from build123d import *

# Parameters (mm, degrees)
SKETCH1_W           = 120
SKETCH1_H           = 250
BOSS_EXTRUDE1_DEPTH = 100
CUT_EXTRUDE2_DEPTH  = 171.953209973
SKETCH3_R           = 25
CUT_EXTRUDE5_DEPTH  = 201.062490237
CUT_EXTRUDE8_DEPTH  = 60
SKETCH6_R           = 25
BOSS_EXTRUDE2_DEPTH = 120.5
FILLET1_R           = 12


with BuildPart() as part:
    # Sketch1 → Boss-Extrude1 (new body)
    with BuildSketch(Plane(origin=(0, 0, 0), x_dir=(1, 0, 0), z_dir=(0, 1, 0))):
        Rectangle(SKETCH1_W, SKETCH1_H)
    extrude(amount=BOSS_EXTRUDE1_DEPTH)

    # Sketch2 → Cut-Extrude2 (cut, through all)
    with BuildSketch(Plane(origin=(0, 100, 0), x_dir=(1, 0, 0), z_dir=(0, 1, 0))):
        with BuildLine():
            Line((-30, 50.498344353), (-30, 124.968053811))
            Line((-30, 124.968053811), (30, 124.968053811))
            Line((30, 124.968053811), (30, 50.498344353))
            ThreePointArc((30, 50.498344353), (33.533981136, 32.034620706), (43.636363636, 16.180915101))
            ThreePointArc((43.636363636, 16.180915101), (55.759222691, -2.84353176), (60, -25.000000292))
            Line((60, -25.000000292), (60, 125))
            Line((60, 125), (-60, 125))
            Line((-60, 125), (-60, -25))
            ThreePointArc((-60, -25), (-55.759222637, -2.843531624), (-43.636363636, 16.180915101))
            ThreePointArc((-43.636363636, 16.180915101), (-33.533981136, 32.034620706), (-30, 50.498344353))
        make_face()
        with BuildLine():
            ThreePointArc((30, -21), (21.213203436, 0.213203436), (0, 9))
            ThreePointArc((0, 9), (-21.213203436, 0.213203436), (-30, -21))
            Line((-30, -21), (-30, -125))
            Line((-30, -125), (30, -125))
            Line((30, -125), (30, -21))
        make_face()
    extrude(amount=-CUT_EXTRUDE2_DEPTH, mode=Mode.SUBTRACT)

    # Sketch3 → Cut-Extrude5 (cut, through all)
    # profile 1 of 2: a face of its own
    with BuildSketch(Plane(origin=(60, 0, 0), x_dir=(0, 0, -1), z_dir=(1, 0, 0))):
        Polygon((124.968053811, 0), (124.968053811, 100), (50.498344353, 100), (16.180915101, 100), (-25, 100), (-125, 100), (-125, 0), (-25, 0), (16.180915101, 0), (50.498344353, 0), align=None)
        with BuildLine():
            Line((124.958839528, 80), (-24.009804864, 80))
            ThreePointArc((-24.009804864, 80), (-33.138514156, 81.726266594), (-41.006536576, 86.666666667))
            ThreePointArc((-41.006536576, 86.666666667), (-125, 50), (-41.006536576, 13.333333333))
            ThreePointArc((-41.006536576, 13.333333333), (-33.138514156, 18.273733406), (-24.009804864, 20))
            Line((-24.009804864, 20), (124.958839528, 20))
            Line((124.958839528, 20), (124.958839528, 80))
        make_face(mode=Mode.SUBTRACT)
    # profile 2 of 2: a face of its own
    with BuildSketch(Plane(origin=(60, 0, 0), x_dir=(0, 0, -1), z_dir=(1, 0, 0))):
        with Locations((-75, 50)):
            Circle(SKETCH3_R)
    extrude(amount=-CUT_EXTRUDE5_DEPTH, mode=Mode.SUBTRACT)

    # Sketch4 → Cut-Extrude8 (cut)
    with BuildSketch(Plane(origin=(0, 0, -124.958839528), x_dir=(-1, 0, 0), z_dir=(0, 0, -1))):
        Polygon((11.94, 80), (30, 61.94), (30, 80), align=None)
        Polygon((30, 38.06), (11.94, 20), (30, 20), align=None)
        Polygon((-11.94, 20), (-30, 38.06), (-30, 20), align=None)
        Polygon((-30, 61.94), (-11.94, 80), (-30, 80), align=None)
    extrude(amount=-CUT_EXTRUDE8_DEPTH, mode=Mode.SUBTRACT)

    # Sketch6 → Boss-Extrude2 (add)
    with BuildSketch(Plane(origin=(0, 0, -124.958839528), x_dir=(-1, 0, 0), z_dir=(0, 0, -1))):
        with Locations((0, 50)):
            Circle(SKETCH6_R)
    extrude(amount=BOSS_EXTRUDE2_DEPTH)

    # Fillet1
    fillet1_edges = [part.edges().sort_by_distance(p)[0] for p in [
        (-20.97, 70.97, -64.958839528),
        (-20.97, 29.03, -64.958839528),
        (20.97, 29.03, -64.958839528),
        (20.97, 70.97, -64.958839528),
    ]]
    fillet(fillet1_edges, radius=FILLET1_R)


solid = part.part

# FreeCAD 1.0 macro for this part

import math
import FreeCAD as App
import Part
import Sketcher
Q = App.Units.Quantity


def edges_at(feature, points):
    """Names of the edges that pass closest to the given points."""
    edges = feature.Shape.Edges
    near = lambda p: min(range(len(edges)), key=lambda i: edges[i].distToShape(Part.Vertex(*p))[0])
    return sorted({f"Edge{near(p) + 1}" for p in points})


def add_polygon(sketch, points):
    """Adds a closed chain of lines whose ends are joined by coincident constraints."""
    first, n = sketch.GeometryCount, len(points)
    for a, b in zip(points, points[1:] + points[:1]):
        sketch.addGeometry(Part.LineSegment(App.Vector(*a, 0), App.Vector(*b, 0)), False)
    for i in range(n):
        sketch.addConstraint(Sketcher.Constraint("Coincident", first + i, 2, first + (i + 1) % n, 1))

doc = App.newDocument("Part")
params = doc.addObject("Spreadsheet::Sheet", "Params")
for row, (alias, value) in enumerate([
    ("sketch1_width", "120 mm"),
    ("sketch1_height", "250 mm"),
    ("pad1_length", "100 mm"),
    ("sketch2_radius", "50 mm"),
    ("sketch2_radius2", "60 mm"),
    ("sketch2_radius3", "30 mm"),
    ("sketch2_height", "150 mm"),
    ("sketch2_height2", "104 mm"),
    ("sketch3_diameter", "50 mm"),
    ("sketch3_radius", "50 mm"),
    ("sketch3_width", "60 mm"),
    ("pocket2_length", "201.06249 mm"),
    ("sketch4_width", "18.06 mm"),
    ("pocket3_length", "60 mm"),
    ("sketch5_diameter", "50 mm"),
    ("pad2_length", "120.5 mm"),
    ("fillet_radius", "12 mm"),
], start=1):
    params.set(f"A{row}", alias)
    params.set(f"B{row}", "=" + value)
    params.setAlias(f"B{row}", alias)

body = doc.addObject("PartDesign::Body", "Body")

# Sketch on XZ plane
sketch1 = doc.addObject("Sketcher::SketchObject", "Sketch")
body.addObject(sketch1)
sketch1.AttachmentSupport = (doc.XZ_Plane, [""])
sketch1.MapMode = "FlatFace"
add_polygon(sketch1, [(-60, -125), (-60, 125), (60, 125), (60, -125)])  # lines 0-3
sketch1.addConstraint([
    Sketcher.Constraint("Vertical", 0),
    Sketcher.Constraint("Horizontal", 1),
    Sketcher.Constraint("Vertical", 2),
    Sketcher.Constraint("Horizontal", 3),
    Sketcher.Constraint("Symmetric", 0, 2, 2, 2, -1, 1),
    Sketcher.Constraint("DistanceX", 1, 1, 1, 2, Q("120 mm")),
    Sketcher.Constraint("DistanceY", 0, 1, 0, 2, Q("250 mm")),
])
sketch1.setExpression("Constraints[9]", "Params.sketch1_width")
sketch1.setExpression("Constraints[10]", "Params.sketch1_height")
pad1 = doc.addObject("PartDesign::Pad", "Pad")
body.addObject(pad1)
pad1.Profile = sketch1
pad1.setExpression("Length", "Params.pad1_length")
pad1.Reversed = True

# Sketch on XZ plane
sketch2 = doc.addObject("Sketcher::SketchObject", "Sketch001")
body.addObject(sketch2)
sketch2.AttachmentSupport = (doc.XZ_Plane, [""])
sketch2.MapMode = "FlatFace"
sketch2.AttachmentOffset = App.Placement(App.Vector(0, 0, -100), App.Rotation())
sketch2.addGeometry([
    Part.LineSegment(App.Vector(-30, -50, 0), App.Vector(-30, -125, 0)),  # 0
    Part.LineSegment(App.Vector(-30, -125, 0), App.Vector(30, -125, 0)),  # 1
    Part.LineSegment(App.Vector(30, -125, 0), App.Vector(30, -50, 0)),  # 2
    Part.ArcOfCircle(Part.Circle(App.Vector(80, -50, 0), App.Vector(0, 0, 1), 50), math.radians(137), math.radians(180)),  # 3
    Part.ArcOfCircle(Part.Circle(App.Vector(0, 25, 0), App.Vector(0, 0, 1), 60), math.radians(-43), math.radians(0)),  # 4
    Part.LineSegment(App.Vector(60, 25, 0), App.Vector(60, -125, 0)),  # 5
    Part.LineSegment(App.Vector(60, -125, 0), App.Vector(-60, -125, 0)),  # 6
    Part.LineSegment(App.Vector(-60, -125, 0), App.Vector(-60, 25, 0)),  # 7
    Part.ArcOfCircle(Part.Circle(App.Vector(0, 25, 0), App.Vector(0, 0, 1), 60), math.radians(180), math.radians(223)),  # 8
    Part.ArcOfCircle(Part.Circle(App.Vector(-80, -50, 0), App.Vector(0, 0, 1), 50), math.radians(0), math.radians(43)),  # 9
    Part.ArcOfCircle(Part.Circle(App.Vector(0, 21, 0), App.Vector(0, 0, 1), 30), math.radians(-90), math.radians(0)),  # 10
    Part.ArcOfCircle(Part.Circle(App.Vector(0, 21, 0), App.Vector(0, 0, 1), 30), math.radians(180), math.radians(270)),  # 11
    Part.LineSegment(App.Vector(-30, 21, 0), App.Vector(-30, 125, 0)),  # 12
    Part.LineSegment(App.Vector(-30, 125, 0), App.Vector(30, 125, 0)),  # 13
    Part.LineSegment(App.Vector(30, 125, 0), App.Vector(30, 21, 0)),  # 14
], False)
sketch2.addConstraint([
    Sketcher.Constraint("Coincident", 0, 2, 1, 1),
    Sketcher.Constraint("Coincident", 1, 2, 2, 1),
    Sketcher.Constraint("Tangent", 2, 2, 3, 2),
    Sketcher.Constraint("Tangent", 3, 1, 4, 1),
    Sketcher.Constraint("Tangent", 4, 2, 5, 1),
    Sketcher.Constraint("Coincident", 5, 2, 6, 1),
    Sketcher.Constraint("Coincident", 6, 2, 7, 1),
    Sketcher.Constraint("Tangent", 7, 2, 8, 1),
    Sketcher.Constraint("Tangent", 8, 2, 9, 2),
    Sketcher.Constraint("Tangent", 9, 1, 0, 1),
    Sketcher.Constraint("Tangent", 10, 1, 11, 2),
    Sketcher.Constraint("Tangent", 11, 1, 12, 1),
    Sketcher.Constraint("Coincident", 12, 2, 13, 1),
    Sketcher.Constraint("Coincident", 13, 2, 14, 1),
    Sketcher.Constraint("Tangent", 14, 2, 10, 2),
    Sketcher.Constraint("Vertical", 0),
    Sketcher.Constraint("Horizontal", 1),
    Sketcher.Constraint("Vertical", 2),
    Sketcher.Constraint("Vertical", 5),
    Sketcher.Constraint("Horizontal", 6),
    Sketcher.Constraint("Vertical", 7),
    Sketcher.Constraint("Vertical", 12),
    Sketcher.Constraint("Horizontal", 13),
    Sketcher.Constraint("Vertical", 14),
    Sketcher.Constraint("Coincident", 8, 3, 4, 3),
    Sketcher.Constraint("Equal", 4, 8),
    Sketcher.Constraint("Equal", 3, 9),
    Sketcher.Constraint("Equal", 10, 11),
    Sketcher.Constraint("Symmetric", 3, 3, 9, 3, -2),
    Sketcher.Constraint("PointOnObject", 10, 3, -2),
    Sketcher.Constraint("PointOnObject", 10, 1, -2),
    Sketcher.Constraint("Vertical", 9, 1, 11, 1),
    Sketcher.Constraint("Radius", 3, Q("50 mm")),
    Sketcher.Constraint("Radius", 4, Q("60 mm")),
    Sketcher.Constraint("Radius", 10, Q("30 mm")),
    Sketcher.Constraint("DistanceY", 5, 2, 5, 1, Q("150 mm")),
    Sketcher.Constraint("DistanceY", 12, 1, 12, 2, Q("104 mm")),
    Sketcher.Constraint("DistanceY", -1, 1, 4, 3, Q("25 mm")),
    Sketcher.Constraint("DistanceY", -1, 1, 10, 3, Q("21 mm")),
    Sketcher.Constraint("DistanceY", 0, 2, 0, 1, Q("74.469709 mm")),
])
sketch2.setExpression("Constraints[32]", "Params.sketch2_radius")
sketch2.setExpression("Constraints[33]", "Params.sketch2_radius2")
sketch2.setExpression("Constraints[34]", "Params.sketch2_radius3")
sketch2.setExpression("Constraints[35]", "Params.sketch2_height")
sketch2.setExpression("Constraints[36]", "Params.sketch2_height2")
pocket1 = doc.addObject("PartDesign::Pocket", "Pocket")
body.addObject(pocket1)
pocket1.Profile = sketch2
pocket1.Type = "ThroughAll"
pocket1.Reversed = True

# Sketch on YZ plane
sketch3 = doc.addObject("Sketcher::SketchObject", "Sketch002")
body.addObject(sketch3)
sketch3.AttachmentSupport = (doc.YZ_Plane, [""])
sketch3.MapMode = "FlatFace"
sketch3.AttachmentOffset = App.Placement(App.Vector(0, 0, 60), App.Rotation())
sketch3.addGeometry([
    Part.LineSegment(App.Vector(0, 75, 0), App.Vector(0, -125, 0)),  # 0
    Part.LineSegment(App.Vector(0, -125, 0), App.Vector(100, -125, 0)),  # 1
    Part.LineSegment(App.Vector(100, -125, 0), App.Vector(100, 75, 0)),  # 2
    Part.ArcOfCircle(Part.Circle(App.Vector(50, 75, 0), App.Vector(0, 0, 1), 50), math.radians(-43), math.radians(0)),  # 3
    Part.ArcOfCircle(Part.Circle(App.Vector(105, 24, 0), App.Vector(0, 0, 1), 25), math.radians(137), math.radians(180)),  # 4
    Part.LineSegment(App.Vector(80, 24, 0), App.Vector(80, -125, 0)),  # 5
    Part.LineSegment(App.Vector(80, -125, 0), App.Vector(20, -125, 0)),  # 6
    Part.LineSegment(App.Vector(20, -125, 0), App.Vector(20, 24, 0)),  # 7
    Part.ArcOfCircle(Part.Circle(App.Vector(-5, 24, 0), App.Vector(0, 0, 1), 25), math.radians(0), math.radians(43)),  # 8
    Part.ArcOfCircle(Part.Circle(App.Vector(50, 75, 0), App.Vector(0, 0, 1), 50), math.radians(180), math.radians(223)),  # 9
    Part.LineSegment(App.Vector(0, 125, 0), App.Vector(0, 75, 0)),  # 10
    Part.ArcOfCircle(Part.Circle(App.Vector(50, 75, 0), App.Vector(0, 0, 1), 50), math.radians(90), math.radians(180)),  # 11
    Part.LineSegment(App.Vector(50, 125, 0), App.Vector(0, 125, 0)),  # 12
    Part.ArcOfCircle(Part.Circle(App.Vector(50, 75, 0), App.Vector(0, 0, 1), 50), math.radians(0), math.radians(90)),  # 13
    Part.LineSegment(App.Vector(100, 75, 0), App.Vector(100, 125, 0)),  # 14
    Part.LineSegment(App.Vector(100, 125, 0), App.Vector(50, 125, 0)),  # 15
    Part.Circle(App.Vector(50, 75, 0), App.Vector(0, 0, 1), 25),  # 16
], False)
sketch3.addConstraint([
    Sketcher.Constraint("Coincident", 0, 2, 1, 1),
    Sketcher.Constraint("Coincident", 1, 2, 2, 1),
    Sketcher.Constraint("Tangent", 2, 2, 3, 2),
    Sketcher.Constraint("Tangent", 3, 1, 4, 1),
    Sketcher.Constraint("Tangent", 4, 2, 5, 1),
    Sketcher.Constraint("Coincident", 5, 2, 6, 1),
    Sketcher.Constraint("Coincident", 6, 2, 7, 1),
    Sketcher.Constraint("Tangent", 7, 2, 8, 1),
    Sketcher.Constraint("Tangent", 8, 2, 9, 2),
    Sketcher.Constraint("Tangent", 9, 1, 0, 1),
    Sketcher.Constraint("Tangent", 10, 2, 11, 2),
    Sketcher.Constraint("Tangent", 11, 1, 12, 1),
    Sketcher.Constraint("Coincident", 12, 2, 10, 1),
    Sketcher.Constraint("Tangent", 13, 1, 14, 1),
    Sketcher.Constraint("Coincident", 14, 2, 15, 1),
    Sketcher.Constraint("Tangent", 15, 2, 13, 2),
    Sketcher.Constraint("Vertical", 0),
    Sketcher.Constraint("Horizontal", 1),
    Sketcher.Constraint("Vertical", 2),
    Sketcher.Constraint("Vertical", 5),
    Sketcher.Constraint("Horizontal", 6),
    Sketcher.Constraint("Vertical", 7),
    Sketcher.Constraint("Vertical", 10),
    Sketcher.Constraint("Horizontal", 12),
    Sketcher.Constraint("Vertical", 14),
    Sketcher.Constraint("Horizontal", 15),
    Sketcher.Constraint("Coincident", 9, 3, 3, 3),
    Sketcher.Constraint("Coincident", 11, 3, 3, 3),
    Sketcher.Constraint("Coincident", 13, 3, 3, 3),
    Sketcher.Constraint("Coincident", 16, 3, 3, 3),
    Sketcher.Constraint("Equal", 4, 8),
    Sketcher.Constraint("Equal", 3, 9),
    Sketcher.Constraint("Equal", 9, 11),
    Sketcher.Constraint("Equal", 11, 13),
    Sketcher.Constraint("Equal", 8, 16),
    Sketcher.Constraint("PointOnObject", 0, 2, -2),
    Sketcher.Constraint("Horizontal", 4, 3, 8, 3),
    Sketcher.Constraint("Diameter", 16, Q("50 mm")),
    Sketcher.Constraint("Radius", 3, Q("50 mm")),
    Sketcher.Constraint("DistanceX", 6, 2, 6, 1, Q("60 mm")),
    Sketcher.Constraint("DistanceY", -1, 1, 3, 3, Q("75 mm")),
    Sketcher.Constraint("DistanceY", 0, 2, 0, 1, Q("199.968054 mm")),
    Sketcher.Constraint("DistanceY", 5, 2, 5, 1, Q("148.968644 mm")),
])
sketch3.setExpression("Constraints[37]", "Params.sketch3_diameter")
sketch3.setExpression("Constraints[38]", "Params.sketch3_radius")
sketch3.setExpression("Constraints[39]", "Params.sketch3_width")
pocket2 = doc.addObject("PartDesign::Pocket", "Pocket001")
body.addObject(pocket2)
pocket2.Profile = sketch3
pocket2.setExpression("Length", "Params.pocket2_length")

# Sketch on XY plane
sketch4 = doc.addObject("Sketcher::SketchObject", "Sketch003")
body.addObject(sketch4)
sketch4.AttachmentSupport = (doc.XY_Plane, [""])
sketch4.MapMode = "FlatFace"
sketch4.AttachmentOffset = App.Placement(App.Vector(0, 0, -124.95884), App.Rotation())
add_polygon(sketch4, [(-12, 80), (-30, 62), (-30, 80)])  # lines 0-2
add_polygon(sketch4, [(-30, 38), (-12, 20), (-30, 20)])  # lines 3-5
add_polygon(sketch4, [(12, 20), (30, 38), (30, 20)])  # lines 6-8
add_polygon(sketch4, [(30, 62), (12, 80), (30, 80)])  # lines 9-11
sketch4.addConstraint([
    Sketcher.Constraint("Vertical", 1),
    Sketcher.Constraint("Horizontal", 2),
    Sketcher.Constraint("Horizontal", 4),
    Sketcher.Constraint("Vertical", 5),
    Sketcher.Constraint("Vertical", 7),
    Sketcher.Constraint("Horizontal", 8),
    Sketcher.Constraint("Horizontal", 10),
    Sketcher.Constraint("Vertical", 11),
    Sketcher.Constraint("Symmetric", 5, 2, 6, 2, -2),
    Sketcher.Constraint("Symmetric", 3, 2, 8, 2, -2),
    Sketcher.Constraint("Symmetric", 2, 2, 9, 2, -2),
    Sketcher.Constraint("Symmetric", 0, 2, 11, 2, -2),
    Sketcher.Constraint("Perpendicular", 0, 3),
    Sketcher.Constraint("Perpendicular", 3, 6),
    Sketcher.Constraint("Vertical", 2, 2, 3, 2),
    Sketcher.Constraint("Vertical", 1, 2, 4, 2),
    Sketcher.Constraint("DistanceX", 0, 2, -1, 1, Q("30 mm")),
    Sketcher.Constraint("DistanceY", -1, 1, 1, 2, Q("80 mm")),
    Sketcher.Constraint("DistanceY", -1, 1, 3, 2, Q("20 mm")),
    Sketcher.Constraint("DistanceX", 2, 1, 2, 2, Q("18.06 mm")),
])
sketch4.setExpression("Constraints[31]", "Params.sketch4_width")
pocket3 = doc.addObject("PartDesign::Pocket", "Pocket002")
body.addObject(pocket3)
pocket3.Profile = sketch4
pocket3.setExpression("Length", "Params.pocket3_length")
pocket3.Reversed = True

# Sketch on XY plane
sketch5 = doc.addObject("Sketcher::SketchObject", "Sketch004")
body.addObject(sketch5)
sketch5.AttachmentSupport = (doc.XY_Plane, [""])
sketch5.MapMode = "FlatFace"
sketch5.AttachmentOffset = App.Placement(App.Vector(0, 0, -124.95884), App.Rotation())
sketch5.addGeometry(Part.Circle(App.Vector(0, 50, 0), App.Vector(0, 0, 1), 25), False)
sketch5.addConstraint([
    Sketcher.Constraint("PointOnObject", 0, 3, -2),
    Sketcher.Constraint("Diameter", 0, Q("50 mm")),
    Sketcher.Constraint("DistanceY", -1, 1, 0, 3, Q("50 mm")),
])
sketch5.setExpression("Constraints[1]", "Params.sketch5_diameter")
pad2 = doc.addObject("PartDesign::Pad", "Pad001")
body.addObject(pad2)
pad2.Profile = sketch5
pad2.setExpression("Length", "Params.pad2_length")
pad2.Reversed = True
doc.recompute()

fillet = doc.addObject("PartDesign::Fillet", "Fillet")
body.addObject(fillet)
fillet.Base = (pad2, edges_at(pad2, [
    (-20.97, 70.97, -64.959),
    (-20.97, 29.03, -64.959),
    (20.97, 29.03, -64.959),
    (20.97, 70.97, -64.959),
]))
fillet.setExpression("Radius", "Params.fillet_radius")

doc.recompute()
